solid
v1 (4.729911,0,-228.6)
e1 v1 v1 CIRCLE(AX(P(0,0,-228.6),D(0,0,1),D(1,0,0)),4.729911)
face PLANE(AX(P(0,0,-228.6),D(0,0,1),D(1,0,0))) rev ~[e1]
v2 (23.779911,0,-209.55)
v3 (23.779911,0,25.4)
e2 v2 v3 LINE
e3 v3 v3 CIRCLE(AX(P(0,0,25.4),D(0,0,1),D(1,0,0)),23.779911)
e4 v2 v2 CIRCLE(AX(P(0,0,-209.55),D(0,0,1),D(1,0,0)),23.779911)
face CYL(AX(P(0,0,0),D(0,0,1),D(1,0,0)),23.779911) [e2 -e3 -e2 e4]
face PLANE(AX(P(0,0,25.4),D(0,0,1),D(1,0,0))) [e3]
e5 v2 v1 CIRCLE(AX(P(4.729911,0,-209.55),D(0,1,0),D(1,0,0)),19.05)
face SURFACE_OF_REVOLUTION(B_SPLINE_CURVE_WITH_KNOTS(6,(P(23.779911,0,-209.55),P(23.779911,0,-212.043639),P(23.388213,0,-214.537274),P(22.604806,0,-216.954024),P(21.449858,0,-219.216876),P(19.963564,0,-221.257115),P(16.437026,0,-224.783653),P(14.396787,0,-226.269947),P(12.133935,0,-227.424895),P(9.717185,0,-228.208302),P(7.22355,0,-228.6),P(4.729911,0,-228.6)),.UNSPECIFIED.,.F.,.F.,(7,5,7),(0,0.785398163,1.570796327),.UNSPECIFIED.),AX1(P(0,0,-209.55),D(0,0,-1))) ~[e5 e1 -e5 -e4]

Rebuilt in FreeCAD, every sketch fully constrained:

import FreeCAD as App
import Part
import Sketcher
from FreeCAD import Vector
Q = App.Units.Quantity


def edges_at(feature, points):
    """Names of the edges that pass closest to the given points."""
    edges = feature.Shape.Edges
    near = lambda p: min(range(len(edges)), key=lambda i: edges[i].distToShape(Part.Vertex(*p))[0])
    return sorted({f"Edge{near(p) + 1}" for p in points})

doc = App.newDocument("Part")
body = doc.addObject("PartDesign::Body", "Body")

sketch1 = body.newObject("Sketcher::SketchObject", "Sketch")
sketch1.AttachmentSupport = (doc.getObject("XY_Plane"), [""])
sketch1.MapMode = "FlatFace"
sketch1.addGeometry(Part.Circle(Vector(0, 0, 0), Vector(0, 0, 1), 23.779911), False)
sketch1.addConstraint([
    Sketcher.Constraint("Coincident", 0, 3, -1, 1),
    Sketcher.Constraint("Diameter", 0, 47.559822),
])
pad1 = body.newObject("PartDesign::Pad", "Pad")
pad1.Profile = sketch1
pad1.Type = "TwoLengths"
pad1.Length = Q("1 in")
pad1.Length2 = Q("9 in")
doc.recompute()

fillet = body.newObject("PartDesign::Fillet", "Fillet")
fillet.Base = (pad1, edges_at(pad1, [(-23.78, 0, -228.6)]))
fillet.Radius = Q("0.75 in")

doc.recompute()
